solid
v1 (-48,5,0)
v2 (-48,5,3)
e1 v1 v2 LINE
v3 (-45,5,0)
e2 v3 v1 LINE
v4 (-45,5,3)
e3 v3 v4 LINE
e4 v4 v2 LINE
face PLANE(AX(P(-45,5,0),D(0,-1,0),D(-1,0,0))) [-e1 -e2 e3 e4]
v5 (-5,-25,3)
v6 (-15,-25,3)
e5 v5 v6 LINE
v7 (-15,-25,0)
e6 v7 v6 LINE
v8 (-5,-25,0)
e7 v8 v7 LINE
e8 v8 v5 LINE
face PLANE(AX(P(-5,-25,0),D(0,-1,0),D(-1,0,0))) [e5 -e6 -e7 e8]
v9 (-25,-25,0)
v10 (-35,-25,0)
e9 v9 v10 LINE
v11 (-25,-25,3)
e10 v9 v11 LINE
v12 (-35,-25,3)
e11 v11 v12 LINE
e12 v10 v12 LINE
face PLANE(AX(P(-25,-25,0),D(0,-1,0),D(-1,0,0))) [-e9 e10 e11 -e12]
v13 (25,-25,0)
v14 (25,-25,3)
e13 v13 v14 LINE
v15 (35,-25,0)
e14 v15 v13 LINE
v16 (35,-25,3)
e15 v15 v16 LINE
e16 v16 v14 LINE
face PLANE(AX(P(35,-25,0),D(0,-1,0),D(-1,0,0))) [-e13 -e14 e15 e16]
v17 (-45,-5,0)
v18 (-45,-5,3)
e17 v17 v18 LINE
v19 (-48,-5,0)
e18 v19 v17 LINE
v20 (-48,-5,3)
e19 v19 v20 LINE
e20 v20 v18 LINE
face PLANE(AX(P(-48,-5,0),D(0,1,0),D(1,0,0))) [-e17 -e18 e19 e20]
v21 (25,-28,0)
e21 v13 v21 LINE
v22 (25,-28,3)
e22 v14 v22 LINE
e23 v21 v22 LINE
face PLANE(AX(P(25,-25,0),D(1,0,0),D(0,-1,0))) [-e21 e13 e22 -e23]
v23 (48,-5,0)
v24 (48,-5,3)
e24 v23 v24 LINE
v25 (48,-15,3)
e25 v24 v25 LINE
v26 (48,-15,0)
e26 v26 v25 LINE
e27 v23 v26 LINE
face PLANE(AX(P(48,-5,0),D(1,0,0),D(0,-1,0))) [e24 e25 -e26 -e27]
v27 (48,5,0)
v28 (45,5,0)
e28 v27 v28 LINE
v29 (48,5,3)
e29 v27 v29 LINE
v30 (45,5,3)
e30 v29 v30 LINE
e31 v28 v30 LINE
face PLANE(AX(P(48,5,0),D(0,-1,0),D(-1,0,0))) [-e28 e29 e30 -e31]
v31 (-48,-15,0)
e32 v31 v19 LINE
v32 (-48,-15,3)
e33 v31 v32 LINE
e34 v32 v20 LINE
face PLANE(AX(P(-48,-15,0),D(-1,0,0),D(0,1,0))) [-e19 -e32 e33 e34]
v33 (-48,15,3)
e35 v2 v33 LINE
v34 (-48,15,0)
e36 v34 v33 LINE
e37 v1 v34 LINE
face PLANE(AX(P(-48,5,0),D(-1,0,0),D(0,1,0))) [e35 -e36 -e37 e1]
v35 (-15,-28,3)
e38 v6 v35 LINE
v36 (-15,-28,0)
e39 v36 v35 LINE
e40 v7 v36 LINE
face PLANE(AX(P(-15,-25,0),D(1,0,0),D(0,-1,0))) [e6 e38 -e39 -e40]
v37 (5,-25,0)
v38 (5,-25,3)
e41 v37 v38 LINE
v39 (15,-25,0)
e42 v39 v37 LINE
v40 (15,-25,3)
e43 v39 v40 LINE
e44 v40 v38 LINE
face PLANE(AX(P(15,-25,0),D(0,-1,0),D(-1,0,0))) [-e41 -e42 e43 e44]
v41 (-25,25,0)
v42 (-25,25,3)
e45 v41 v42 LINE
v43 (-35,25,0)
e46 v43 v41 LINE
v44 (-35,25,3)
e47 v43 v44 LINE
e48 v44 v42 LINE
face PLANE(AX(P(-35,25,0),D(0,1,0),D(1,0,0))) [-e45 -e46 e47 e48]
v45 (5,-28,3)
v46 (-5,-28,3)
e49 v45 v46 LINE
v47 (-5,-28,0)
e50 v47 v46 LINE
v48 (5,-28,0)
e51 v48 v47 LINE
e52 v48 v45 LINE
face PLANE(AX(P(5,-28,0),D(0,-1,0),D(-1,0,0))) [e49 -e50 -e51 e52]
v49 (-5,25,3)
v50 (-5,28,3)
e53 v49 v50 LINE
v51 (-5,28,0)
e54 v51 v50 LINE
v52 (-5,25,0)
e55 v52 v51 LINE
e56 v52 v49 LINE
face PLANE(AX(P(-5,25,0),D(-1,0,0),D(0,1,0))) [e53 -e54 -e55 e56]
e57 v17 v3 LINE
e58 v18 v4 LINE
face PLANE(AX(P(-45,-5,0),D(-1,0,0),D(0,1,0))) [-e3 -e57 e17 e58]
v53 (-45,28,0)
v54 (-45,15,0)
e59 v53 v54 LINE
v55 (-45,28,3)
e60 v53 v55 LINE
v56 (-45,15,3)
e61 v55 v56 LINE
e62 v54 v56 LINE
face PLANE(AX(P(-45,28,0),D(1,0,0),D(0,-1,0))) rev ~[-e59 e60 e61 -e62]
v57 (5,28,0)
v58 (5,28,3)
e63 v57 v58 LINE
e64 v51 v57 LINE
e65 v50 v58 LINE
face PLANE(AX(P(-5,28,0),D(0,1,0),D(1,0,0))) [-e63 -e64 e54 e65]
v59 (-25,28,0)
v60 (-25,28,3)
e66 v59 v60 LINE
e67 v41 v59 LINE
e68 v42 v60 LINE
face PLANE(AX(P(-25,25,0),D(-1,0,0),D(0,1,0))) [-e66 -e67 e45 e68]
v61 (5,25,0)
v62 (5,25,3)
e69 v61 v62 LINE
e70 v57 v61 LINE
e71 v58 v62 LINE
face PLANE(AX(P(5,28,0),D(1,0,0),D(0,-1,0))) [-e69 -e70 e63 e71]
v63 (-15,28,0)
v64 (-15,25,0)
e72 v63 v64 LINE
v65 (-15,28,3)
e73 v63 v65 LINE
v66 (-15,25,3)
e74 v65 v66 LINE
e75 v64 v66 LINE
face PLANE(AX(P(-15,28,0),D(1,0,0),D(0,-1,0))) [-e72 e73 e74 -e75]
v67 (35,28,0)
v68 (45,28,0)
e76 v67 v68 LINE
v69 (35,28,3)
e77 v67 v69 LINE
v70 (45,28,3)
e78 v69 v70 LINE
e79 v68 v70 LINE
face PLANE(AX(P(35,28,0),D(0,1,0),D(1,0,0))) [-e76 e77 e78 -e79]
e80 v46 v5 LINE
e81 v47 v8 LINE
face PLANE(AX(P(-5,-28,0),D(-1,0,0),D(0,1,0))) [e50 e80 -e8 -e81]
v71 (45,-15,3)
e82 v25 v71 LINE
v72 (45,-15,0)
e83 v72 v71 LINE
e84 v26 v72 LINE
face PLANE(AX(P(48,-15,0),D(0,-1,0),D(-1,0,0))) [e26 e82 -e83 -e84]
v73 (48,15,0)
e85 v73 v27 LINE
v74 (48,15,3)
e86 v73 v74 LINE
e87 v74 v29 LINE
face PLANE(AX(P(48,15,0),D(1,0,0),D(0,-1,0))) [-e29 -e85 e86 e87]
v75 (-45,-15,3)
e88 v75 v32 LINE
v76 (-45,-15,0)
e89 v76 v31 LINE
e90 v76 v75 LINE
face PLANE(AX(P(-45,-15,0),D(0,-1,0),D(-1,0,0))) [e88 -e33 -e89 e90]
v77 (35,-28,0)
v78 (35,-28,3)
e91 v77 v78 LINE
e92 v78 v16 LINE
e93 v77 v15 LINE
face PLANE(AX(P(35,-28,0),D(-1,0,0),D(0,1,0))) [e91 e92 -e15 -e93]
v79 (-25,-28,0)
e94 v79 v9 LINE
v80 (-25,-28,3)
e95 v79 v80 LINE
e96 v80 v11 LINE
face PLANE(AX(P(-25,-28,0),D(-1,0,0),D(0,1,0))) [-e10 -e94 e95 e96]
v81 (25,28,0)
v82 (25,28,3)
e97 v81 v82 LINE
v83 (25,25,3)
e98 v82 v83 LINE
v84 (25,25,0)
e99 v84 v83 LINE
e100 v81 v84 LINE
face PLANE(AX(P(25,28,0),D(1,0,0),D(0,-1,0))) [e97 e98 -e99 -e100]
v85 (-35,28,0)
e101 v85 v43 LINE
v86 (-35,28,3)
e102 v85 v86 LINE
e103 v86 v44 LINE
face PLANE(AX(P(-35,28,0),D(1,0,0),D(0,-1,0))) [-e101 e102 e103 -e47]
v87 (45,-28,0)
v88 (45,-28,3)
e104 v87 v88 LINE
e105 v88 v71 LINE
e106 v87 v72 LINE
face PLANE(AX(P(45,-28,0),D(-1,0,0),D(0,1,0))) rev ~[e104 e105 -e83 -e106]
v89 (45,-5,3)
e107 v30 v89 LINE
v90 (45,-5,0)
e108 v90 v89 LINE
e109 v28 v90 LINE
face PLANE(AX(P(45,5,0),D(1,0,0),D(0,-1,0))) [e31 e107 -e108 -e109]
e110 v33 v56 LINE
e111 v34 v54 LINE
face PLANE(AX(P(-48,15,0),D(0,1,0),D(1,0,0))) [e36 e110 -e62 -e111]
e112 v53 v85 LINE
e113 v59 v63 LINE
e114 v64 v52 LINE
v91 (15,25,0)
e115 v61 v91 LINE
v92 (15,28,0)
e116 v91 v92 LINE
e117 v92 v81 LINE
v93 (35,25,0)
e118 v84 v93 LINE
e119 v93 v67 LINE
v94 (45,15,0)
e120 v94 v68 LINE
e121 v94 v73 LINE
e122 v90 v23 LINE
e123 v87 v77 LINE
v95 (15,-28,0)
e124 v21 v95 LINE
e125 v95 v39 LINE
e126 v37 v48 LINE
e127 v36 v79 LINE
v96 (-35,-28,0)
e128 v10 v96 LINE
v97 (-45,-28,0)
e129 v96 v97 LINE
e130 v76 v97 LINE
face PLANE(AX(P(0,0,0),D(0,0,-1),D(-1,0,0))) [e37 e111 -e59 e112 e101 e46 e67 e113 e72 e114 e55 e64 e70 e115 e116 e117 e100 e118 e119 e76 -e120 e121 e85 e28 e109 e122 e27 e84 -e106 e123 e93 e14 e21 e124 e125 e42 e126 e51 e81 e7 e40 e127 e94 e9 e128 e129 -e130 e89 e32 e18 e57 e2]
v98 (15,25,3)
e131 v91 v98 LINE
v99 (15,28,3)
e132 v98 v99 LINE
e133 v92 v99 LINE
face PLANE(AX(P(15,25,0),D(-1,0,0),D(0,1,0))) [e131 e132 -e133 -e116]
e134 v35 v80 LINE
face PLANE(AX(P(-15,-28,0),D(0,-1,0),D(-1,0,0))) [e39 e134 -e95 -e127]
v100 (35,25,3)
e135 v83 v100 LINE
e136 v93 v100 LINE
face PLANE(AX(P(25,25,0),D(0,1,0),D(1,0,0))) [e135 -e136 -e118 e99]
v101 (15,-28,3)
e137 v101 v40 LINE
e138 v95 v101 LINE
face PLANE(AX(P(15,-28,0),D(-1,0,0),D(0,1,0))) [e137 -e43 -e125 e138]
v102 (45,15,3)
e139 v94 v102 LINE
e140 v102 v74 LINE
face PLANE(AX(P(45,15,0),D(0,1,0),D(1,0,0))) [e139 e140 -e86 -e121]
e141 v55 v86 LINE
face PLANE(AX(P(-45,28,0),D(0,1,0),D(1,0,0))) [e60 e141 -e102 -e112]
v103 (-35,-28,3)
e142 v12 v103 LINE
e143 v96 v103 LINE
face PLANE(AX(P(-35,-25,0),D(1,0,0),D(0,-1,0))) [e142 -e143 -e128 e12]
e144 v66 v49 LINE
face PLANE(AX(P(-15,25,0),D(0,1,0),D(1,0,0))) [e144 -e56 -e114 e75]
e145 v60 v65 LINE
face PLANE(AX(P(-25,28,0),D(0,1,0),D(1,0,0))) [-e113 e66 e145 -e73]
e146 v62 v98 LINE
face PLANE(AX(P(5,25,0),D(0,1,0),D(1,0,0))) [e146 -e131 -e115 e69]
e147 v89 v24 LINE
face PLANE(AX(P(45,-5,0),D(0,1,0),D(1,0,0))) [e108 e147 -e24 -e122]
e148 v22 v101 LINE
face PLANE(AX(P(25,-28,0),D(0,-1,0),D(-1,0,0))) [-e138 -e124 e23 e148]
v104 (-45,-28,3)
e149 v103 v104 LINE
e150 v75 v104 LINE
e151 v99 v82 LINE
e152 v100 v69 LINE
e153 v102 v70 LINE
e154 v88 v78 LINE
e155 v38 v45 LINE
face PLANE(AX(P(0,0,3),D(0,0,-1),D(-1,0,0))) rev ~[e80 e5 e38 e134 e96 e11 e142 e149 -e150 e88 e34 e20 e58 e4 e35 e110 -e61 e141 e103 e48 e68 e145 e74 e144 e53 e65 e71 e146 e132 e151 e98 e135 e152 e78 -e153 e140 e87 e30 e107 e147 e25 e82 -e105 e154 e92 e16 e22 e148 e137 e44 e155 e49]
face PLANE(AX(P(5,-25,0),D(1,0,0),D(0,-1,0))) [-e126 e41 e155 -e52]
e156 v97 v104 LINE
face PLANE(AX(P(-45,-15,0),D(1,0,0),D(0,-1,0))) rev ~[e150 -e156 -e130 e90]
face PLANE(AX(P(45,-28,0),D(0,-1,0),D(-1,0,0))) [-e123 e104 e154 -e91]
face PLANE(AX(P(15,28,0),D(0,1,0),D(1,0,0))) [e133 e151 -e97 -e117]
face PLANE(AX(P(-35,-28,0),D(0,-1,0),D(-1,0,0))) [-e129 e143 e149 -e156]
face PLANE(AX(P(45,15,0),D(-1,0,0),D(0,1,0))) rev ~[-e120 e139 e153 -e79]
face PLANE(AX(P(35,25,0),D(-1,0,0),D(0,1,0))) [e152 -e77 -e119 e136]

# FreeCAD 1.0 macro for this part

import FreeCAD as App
import Part
import Sketcher
from FreeCAD import Vector

doc = App.newDocument("Part")
params = doc.addObject("Spreadsheet::Sheet", "Params")
for row, (alias, value) in enumerate([
    ("sketch1_width", "10 mm"),
    ("sketch1_width2", "3 mm"),
    ("sketch1_height", "13 mm"),
    ("pad1_length", "3 mm"),
], start=1):
    params.set(f"A{row}", alias)
    params.set(f"B{row}", "=" + value)
    params.setAlias(f"B{row}", alias)

body = doc.addObject("PartDesign::Body", "Body")

# Sketch on XY plane
sketch1 = doc.addObject("Sketcher::SketchObject", "Sketch")
body.addObject(sketch1)
sketch1.AttachmentSupport = (doc.XY_Plane, [""])
sketch1.MapMode = "FlatFace"
sketch1.addGeometry([
    Part.LineSegment(Vector(25, 25, 0), Vector(25, 28, 0)),  # 0
    Part.LineSegment(Vector(25, 28, 0), Vector(15, 28, 0)),  # 1
    Part.LineSegment(Vector(15, 28, 0), Vector(15, 25, 0)),  # 2
    Part.LineSegment(Vector(15, 25, 0), Vector(5, 25, 0)),  # 3
    Part.LineSegment(Vector(5, 25, 0), Vector(5, 28, 0)),  # 4
    Part.LineSegment(Vector(5, 28, 0), Vector(-5, 28, 0)),  # 5
    Part.LineSegment(Vector(-5, 28, 0), Vector(-5, 25, 0)),  # 6
    Part.LineSegment(Vector(-5, 25, 0), Vector(-15, 25, 0)),  # 7
    Part.LineSegment(Vector(-15, 25, 0), Vector(-15, 28, 0)),  # 8
    Part.LineSegment(Vector(-15, 28, 0), Vector(-25, 28, 0)),  # 9
    Part.LineSegment(Vector(-25, 28, 0), Vector(-25, 25, 0)),  # 10
    Part.LineSegment(Vector(-25, 25, 0), Vector(-35, 25, 0)),  # 11
    Part.LineSegment(Vector(-35, 25, 0), Vector(-35, 28, 0)),  # 12
    Part.LineSegment(Vector(-35, 28, 0), Vector(-45, 28, 0)),  # 13
    Part.LineSegment(Vector(-45, 28, 0), Vector(-45, 15, 0)),  # 14
    Part.LineSegment(Vector(-45, 15, 0), Vector(-48, 15, 0)),  # 15
    Part.LineSegment(Vector(-48, 15, 0), Vector(-48, 5, 0)),  # 16
    Part.LineSegment(Vector(-48, 5, 0), Vector(-45, 5, 0)),  # 17
    Part.LineSegment(Vector(-45, 5, 0), Vector(-45, -5, 0)),  # 18
    Part.LineSegment(Vector(-45, -5, 0), Vector(-48, -5, 0)),  # 19
    Part.LineSegment(Vector(-48, -5, 0), Vector(-48, -15, 0)),  # 20
    Part.LineSegment(Vector(-48, -15, 0), Vector(-45, -15, 0)),  # 21
    Part.LineSegment(Vector(-45, -15, 0), Vector(-45, -28, 0)),  # 22
    Part.LineSegment(Vector(-45, -28, 0), Vector(-35, -28, 0)),  # 23
    Part.LineSegment(Vector(-35, -28, 0), Vector(-35, -25, 0)),  # 24
    Part.LineSegment(Vector(-35, -25, 0), Vector(-25, -25, 0)),  # 25
    Part.LineSegment(Vector(-25, -25, 0), Vector(-25, -28, 0)),  # 26
    Part.LineSegment(Vector(-25, -28, 0), Vector(-15, -28, 0)),  # 27
    Part.LineSegment(Vector(-15, -28, 0), Vector(-15, -25, 0)),  # 28
    Part.LineSegment(Vector(-15, -25, 0), Vector(-5, -25, 0)),  # 29
    Part.LineSegment(Vector(-5, -25, 0), Vector(-5, -28, 0)),  # 30
    Part.LineSegment(Vector(-5, -28, 0), Vector(5, -28, 0)),  # 31
    Part.LineSegment(Vector(5, -28, 0), Vector(5, -25, 0)),  # 32
    Part.LineSegment(Vector(5, -25, 0), Vector(15, -25, 0)),  # 33
    Part.LineSegment(Vector(15, -25, 0), Vector(15, -28, 0)),  # 34
    Part.LineSegment(Vector(15, -28, 0), Vector(25, -28, 0)),  # 35
    Part.LineSegment(Vector(25, -28, 0), Vector(25, -25, 0)),  # 36
    Part.LineSegment(Vector(25, -25, 0), Vector(35, -25, 0)),  # 37
    Part.LineSegment(Vector(35, -25, 0), Vector(35, -28, 0)),  # 38
    Part.LineSegment(Vector(35, -28, 0), Vector(45, -28, 0)),  # 39
    Part.LineSegment(Vector(45, -28, 0), Vector(45, -15, 0)),  # 40
    Part.LineSegment(Vector(45, -15, 0), Vector(48, -15, 0)),  # 41
    Part.LineSegment(Vector(48, -15, 0), Vector(48, -5, 0)),  # 42
    Part.LineSegment(Vector(48, -5, 0), Vector(45, -5, 0)),  # 43
    Part.LineSegment(Vector(45, -5, 0), Vector(45, 5, 0)),  # 44
    Part.LineSegment(Vector(45, 5, 0), Vector(48, 5, 0)),  # 45
    Part.LineSegment(Vector(48, 5, 0), Vector(48, 15, 0)),  # 46
    Part.LineSegment(Vector(48, 15, 0), Vector(45, 15, 0)),  # 47
    Part.LineSegment(Vector(45, 15, 0), Vector(45, 28, 0)),  # 48
    Part.LineSegment(Vector(45, 28, 0), Vector(35, 28, 0)),  # 49
    Part.LineSegment(Vector(35, 28, 0), Vector(35, 25, 0)),  # 50
    Part.LineSegment(Vector(35, 25, 0), Vector(25, 25, 0)),  # 51
], False)
sketch1.addConstraint([
    Sketcher.Constraint("Coincident", 0, 2, 1, 1),
    Sketcher.Constraint("Coincident", 1, 2, 2, 1),
    Sketcher.Constraint("Coincident", 2, 2, 3, 1),
    Sketcher.Constraint("Coincident", 3, 2, 4, 1),
    Sketcher.Constraint("Coincident", 4, 2, 5, 1),
    Sketcher.Constraint("Coincident", 5, 2, 6, 1),
    Sketcher.Constraint("Coincident", 6, 2, 7, 1),
    Sketcher.Constraint("Coincident", 7, 2, 8, 1),
    Sketcher.Constraint("Coincident", 8, 2, 9, 1),
    Sketcher.Constraint("Coincident", 9, 2, 10, 1),
    Sketcher.Constraint("Coincident", 10, 2, 11, 1),
    Sketcher.Constraint("Coincident", 11, 2, 12, 1),
    Sketcher.Constraint("Coincident", 12, 2, 13, 1),
    Sketcher.Constraint("Coincident", 13, 2, 14, 1),
    Sketcher.Constraint("Coincident", 14, 2, 15, 1),
    Sketcher.Constraint("Coincident", 15, 2, 16, 1),
    Sketcher.Constraint("Coincident", 16, 2, 17, 1),
    Sketcher.Constraint("Coincident", 17, 2, 18, 1),
    Sketcher.Constraint("Coincident", 18, 2, 19, 1),
    Sketcher.Constraint("Coincident", 19, 2, 20, 1),
    Sketcher.Constraint("Coincident", 20, 2, 21, 1),
    Sketcher.Constraint("Coincident", 21, 2, 22, 1),
    Sketcher.Constraint("Coincident", 22, 2, 23, 1),
    Sketcher.Constraint("Coincident", 23, 2, 24, 1),
    Sketcher.Constraint("Coincident", 24, 2, 25, 1),
    Sketcher.Constraint("Coincident", 25, 2, 26, 1),
    Sketcher.Constraint("Coincident", 26, 2, 27, 1),
    Sketcher.Constraint("Coincident", 27, 2, 28, 1),
    Sketcher.Constraint("Coincident", 28, 2, 29, 1),
    Sketcher.Constraint("Coincident", 29, 2, 30, 1),
    Sketcher.Constraint("Coincident", 30, 2, 31, 1),
    Sketcher.Constraint("Coincident", 31, 2, 32, 1),
    Sketcher.Constraint("Coincident", 32, 2, 33, 1),
    Sketcher.Constraint("Coincident", 33, 2, 34, 1),
    Sketcher.Constraint("Coincident", 34, 2, 35, 1),
    Sketcher.Constraint("Coincident", 35, 2, 36, 1),
    Sketcher.Constraint("Coincident", 36, 2, 37, 1),
    Sketcher.Constraint("Coincident", 37, 2, 38, 1),
    Sketcher.Constraint("Coincident", 38, 2, 39, 1),
    Sketcher.Constraint("Coincident", 39, 2, 40, 1),
    Sketcher.Constraint("Coincident", 40, 2, 41, 1),
    Sketcher.Constraint("Coincident", 41, 2, 42, 1),
    Sketcher.Constraint("Coincident", 42, 2, 43, 1),
    Sketcher.Constraint("Coincident", 43, 2, 44, 1),
    Sketcher.Constraint("Coincident", 44, 2, 45, 1),
    Sketcher.Constraint("Coincident", 45, 2, 46, 1),
    Sketcher.Constraint("Coincident", 46, 2, 47, 1),
    Sketcher.Constraint("Coincident", 47, 2, 48, 1),
    Sketcher.Constraint("Coincident", 48, 2, 49, 1),
    Sketcher.Constraint("Coincident", 49, 2, 50, 1),
    Sketcher.Constraint("Coincident", 50, 2, 51, 1),
    Sketcher.Constraint("Coincident", 51, 2, 0, 1),
    Sketcher.Constraint("Vertical", 0),
    Sketcher.Constraint("Horizontal", 1),
    Sketcher.Constraint("Vertical", 2),
    Sketcher.Constraint("Horizontal", 3),
    Sketcher.Constraint("Vertical", 4),
    Sketcher.Constraint("Horizontal", 5),
    Sketcher.Constraint("Vertical", 6),
    Sketcher.Constraint("Horizontal", 7),
    Sketcher.Constraint("Vertical", 8),
    Sketcher.Constraint("Horizontal", 9),
    Sketcher.Constraint("Vertical", 10),
    Sketcher.Constraint("Horizontal", 11),
    Sketcher.Constraint("Vertical", 12),
    Sketcher.Constraint("Horizontal", 13),
    Sketcher.Constraint("Vertical", 14),
    Sketcher.Constraint("Horizontal", 15),
    Sketcher.Constraint("Vertical", 16),
    Sketcher.Constraint("Horizontal", 17),
    Sketcher.Constraint("Vertical", 18),
    Sketcher.Constraint("Horizontal", 19),
    Sketcher.Constraint("Vertical", 20),
    Sketcher.Constraint("Horizontal", 21),
    Sketcher.Constraint("Vertical", 22),
    Sketcher.Constraint("Horizontal", 23),
    Sketcher.Constraint("Vertical", 24),
    Sketcher.Constraint("Horizontal", 25),
    Sketcher.Constraint("Vertical", 26),
    Sketcher.Constraint("Horizontal", 27),
    Sketcher.Constraint("Vertical", 28),
    Sketcher.Constraint("Horizontal", 29),
    Sketcher.Constraint("Vertical", 30),
    Sketcher.Constraint("Horizontal", 31),
    Sketcher.Constraint("Vertical", 32),
    Sketcher.Constraint("Horizontal", 33),
    Sketcher.Constraint("Vertical", 34),
    Sketcher.Constraint("Horizontal", 35),
    Sketcher.Constraint("Vertical", 36),
    Sketcher.Constraint("Horizontal", 37),
    Sketcher.Constraint("Vertical", 38),
    Sketcher.Constraint("Horizontal", 39),
    Sketcher.Constraint("Vertical", 40),
    Sketcher.Constraint("Horizontal", 41),
    Sketcher.Constraint("Vertical", 42),
    Sketcher.Constraint("Horizontal", 43),
    Sketcher.Constraint("Vertical", 44),
    Sketcher.Constraint("Horizontal", 45),
    Sketcher.Constraint("Vertical", 46),
    Sketcher.Constraint("Horizontal", 47),
    Sketcher.Constraint("Vertical", 48),
    Sketcher.Constraint("Horizontal", 49),
    Sketcher.Constraint("Vertical", 50),
    Sketcher.Constraint("Horizontal", 51),
    Sketcher.Constraint("Symmetric", 0, 2, 26, 2, -1, 1),
    Sketcher.Constraint("Symmetric", 2, 2, 28, 2, -1, 1),
    Sketcher.Constraint("Symmetric", 4, 2, 30, 2, -1, 1),
    Sketcher.Constraint("Symmetric", 6, 2, 32, 2, -1, 1),
    Sketcher.Constraint("Symmetric", 8, 2, 34, 2, -1, 1),
    Sketcher.Constraint("Symmetric", 10, 2, 36, 2, -1, 1),
    Sketcher.Constraint("Symmetric", 12, 2, 38, 2, -1, 1),
    Sketcher.Constraint("Symmetric", 14, 2, 40, 2, -1, 1),
    Sketcher.Constraint("Symmetric", 16, 2, 42, 2, -1, 1),
    Sketcher.Constraint("Symmetric", 18, 2, 44, 2, -1, 1),
    Sketcher.Constraint("Symmetric", 20, 2, 46, 2, -1, 1),
    Sketcher.Constraint("Symmetric", 22, 2, 48, 2, -1, 1),
    Sketcher.Constraint("Symmetric", 24, 2, 50, 2, -1, 1),
    Sketcher.Constraint("Symmetric", 3, 2, 6, 2, -2),
    Sketcher.Constraint("Symmetric", 1, 2, 8, 2, -2),
    Sketcher.Constraint("Symmetric", 25, 2, 36, 2, -2),
    Sketcher.Constraint("Symmetric", 23, 2, 38, 2, -2),
    Sketcher.Constraint("Symmetric", 21, 2, 40, 2, -2),
    Sketcher.Constraint("Symmetric", 19, 2, 42, 2, -2),
    Sketcher.Constraint("Horizontal", 1, 2, 4, 2),
    Sketcher.Constraint("Horizontal", 7, 2, 10, 2),
    Sketcher.Constraint("Horizontal", 9, 2, 12, 2),
    Sketcher.Constraint("Vertical", 14, 2, 17, 2),
    Sketcher.Constraint("Equal", 1, 3),
    Sketcher.Constraint("Equal", 3, 5),
    Sketcher.Constraint("Equal", 9, 11),
    Sketcher.Constraint("Equal", 11, 13),
    Sketcher.Constraint("Equal", 47, 0),
    Sketcher.Constraint("Equal", 51, 16),
    Sketcher.Constraint("Equal", 16, 18),
    Sketcher.Constraint("DistanceX", 1, 2, 1, 1, 10.0),
    Sketcher.Constraint("DistanceX", 15, 2, 15, 1, 3.0),
    Sketcher.Constraint("DistanceY", 14, 2, 14, 1, 13.0),
])
sketch1.setExpression("Constraints[134]", "Params.sketch1_width")
sketch1.setExpression("Constraints[135]", "Params.sketch1_width2")
sketch1.setExpression("Constraints[136]", "Params.sketch1_height")
pad1 = doc.addObject("PartDesign::Pad", "Pad")
body.addObject(pad1)
pad1.Profile = sketch1
pad1.setExpression("Length", "Params.pad1_length")

doc.recompute()
